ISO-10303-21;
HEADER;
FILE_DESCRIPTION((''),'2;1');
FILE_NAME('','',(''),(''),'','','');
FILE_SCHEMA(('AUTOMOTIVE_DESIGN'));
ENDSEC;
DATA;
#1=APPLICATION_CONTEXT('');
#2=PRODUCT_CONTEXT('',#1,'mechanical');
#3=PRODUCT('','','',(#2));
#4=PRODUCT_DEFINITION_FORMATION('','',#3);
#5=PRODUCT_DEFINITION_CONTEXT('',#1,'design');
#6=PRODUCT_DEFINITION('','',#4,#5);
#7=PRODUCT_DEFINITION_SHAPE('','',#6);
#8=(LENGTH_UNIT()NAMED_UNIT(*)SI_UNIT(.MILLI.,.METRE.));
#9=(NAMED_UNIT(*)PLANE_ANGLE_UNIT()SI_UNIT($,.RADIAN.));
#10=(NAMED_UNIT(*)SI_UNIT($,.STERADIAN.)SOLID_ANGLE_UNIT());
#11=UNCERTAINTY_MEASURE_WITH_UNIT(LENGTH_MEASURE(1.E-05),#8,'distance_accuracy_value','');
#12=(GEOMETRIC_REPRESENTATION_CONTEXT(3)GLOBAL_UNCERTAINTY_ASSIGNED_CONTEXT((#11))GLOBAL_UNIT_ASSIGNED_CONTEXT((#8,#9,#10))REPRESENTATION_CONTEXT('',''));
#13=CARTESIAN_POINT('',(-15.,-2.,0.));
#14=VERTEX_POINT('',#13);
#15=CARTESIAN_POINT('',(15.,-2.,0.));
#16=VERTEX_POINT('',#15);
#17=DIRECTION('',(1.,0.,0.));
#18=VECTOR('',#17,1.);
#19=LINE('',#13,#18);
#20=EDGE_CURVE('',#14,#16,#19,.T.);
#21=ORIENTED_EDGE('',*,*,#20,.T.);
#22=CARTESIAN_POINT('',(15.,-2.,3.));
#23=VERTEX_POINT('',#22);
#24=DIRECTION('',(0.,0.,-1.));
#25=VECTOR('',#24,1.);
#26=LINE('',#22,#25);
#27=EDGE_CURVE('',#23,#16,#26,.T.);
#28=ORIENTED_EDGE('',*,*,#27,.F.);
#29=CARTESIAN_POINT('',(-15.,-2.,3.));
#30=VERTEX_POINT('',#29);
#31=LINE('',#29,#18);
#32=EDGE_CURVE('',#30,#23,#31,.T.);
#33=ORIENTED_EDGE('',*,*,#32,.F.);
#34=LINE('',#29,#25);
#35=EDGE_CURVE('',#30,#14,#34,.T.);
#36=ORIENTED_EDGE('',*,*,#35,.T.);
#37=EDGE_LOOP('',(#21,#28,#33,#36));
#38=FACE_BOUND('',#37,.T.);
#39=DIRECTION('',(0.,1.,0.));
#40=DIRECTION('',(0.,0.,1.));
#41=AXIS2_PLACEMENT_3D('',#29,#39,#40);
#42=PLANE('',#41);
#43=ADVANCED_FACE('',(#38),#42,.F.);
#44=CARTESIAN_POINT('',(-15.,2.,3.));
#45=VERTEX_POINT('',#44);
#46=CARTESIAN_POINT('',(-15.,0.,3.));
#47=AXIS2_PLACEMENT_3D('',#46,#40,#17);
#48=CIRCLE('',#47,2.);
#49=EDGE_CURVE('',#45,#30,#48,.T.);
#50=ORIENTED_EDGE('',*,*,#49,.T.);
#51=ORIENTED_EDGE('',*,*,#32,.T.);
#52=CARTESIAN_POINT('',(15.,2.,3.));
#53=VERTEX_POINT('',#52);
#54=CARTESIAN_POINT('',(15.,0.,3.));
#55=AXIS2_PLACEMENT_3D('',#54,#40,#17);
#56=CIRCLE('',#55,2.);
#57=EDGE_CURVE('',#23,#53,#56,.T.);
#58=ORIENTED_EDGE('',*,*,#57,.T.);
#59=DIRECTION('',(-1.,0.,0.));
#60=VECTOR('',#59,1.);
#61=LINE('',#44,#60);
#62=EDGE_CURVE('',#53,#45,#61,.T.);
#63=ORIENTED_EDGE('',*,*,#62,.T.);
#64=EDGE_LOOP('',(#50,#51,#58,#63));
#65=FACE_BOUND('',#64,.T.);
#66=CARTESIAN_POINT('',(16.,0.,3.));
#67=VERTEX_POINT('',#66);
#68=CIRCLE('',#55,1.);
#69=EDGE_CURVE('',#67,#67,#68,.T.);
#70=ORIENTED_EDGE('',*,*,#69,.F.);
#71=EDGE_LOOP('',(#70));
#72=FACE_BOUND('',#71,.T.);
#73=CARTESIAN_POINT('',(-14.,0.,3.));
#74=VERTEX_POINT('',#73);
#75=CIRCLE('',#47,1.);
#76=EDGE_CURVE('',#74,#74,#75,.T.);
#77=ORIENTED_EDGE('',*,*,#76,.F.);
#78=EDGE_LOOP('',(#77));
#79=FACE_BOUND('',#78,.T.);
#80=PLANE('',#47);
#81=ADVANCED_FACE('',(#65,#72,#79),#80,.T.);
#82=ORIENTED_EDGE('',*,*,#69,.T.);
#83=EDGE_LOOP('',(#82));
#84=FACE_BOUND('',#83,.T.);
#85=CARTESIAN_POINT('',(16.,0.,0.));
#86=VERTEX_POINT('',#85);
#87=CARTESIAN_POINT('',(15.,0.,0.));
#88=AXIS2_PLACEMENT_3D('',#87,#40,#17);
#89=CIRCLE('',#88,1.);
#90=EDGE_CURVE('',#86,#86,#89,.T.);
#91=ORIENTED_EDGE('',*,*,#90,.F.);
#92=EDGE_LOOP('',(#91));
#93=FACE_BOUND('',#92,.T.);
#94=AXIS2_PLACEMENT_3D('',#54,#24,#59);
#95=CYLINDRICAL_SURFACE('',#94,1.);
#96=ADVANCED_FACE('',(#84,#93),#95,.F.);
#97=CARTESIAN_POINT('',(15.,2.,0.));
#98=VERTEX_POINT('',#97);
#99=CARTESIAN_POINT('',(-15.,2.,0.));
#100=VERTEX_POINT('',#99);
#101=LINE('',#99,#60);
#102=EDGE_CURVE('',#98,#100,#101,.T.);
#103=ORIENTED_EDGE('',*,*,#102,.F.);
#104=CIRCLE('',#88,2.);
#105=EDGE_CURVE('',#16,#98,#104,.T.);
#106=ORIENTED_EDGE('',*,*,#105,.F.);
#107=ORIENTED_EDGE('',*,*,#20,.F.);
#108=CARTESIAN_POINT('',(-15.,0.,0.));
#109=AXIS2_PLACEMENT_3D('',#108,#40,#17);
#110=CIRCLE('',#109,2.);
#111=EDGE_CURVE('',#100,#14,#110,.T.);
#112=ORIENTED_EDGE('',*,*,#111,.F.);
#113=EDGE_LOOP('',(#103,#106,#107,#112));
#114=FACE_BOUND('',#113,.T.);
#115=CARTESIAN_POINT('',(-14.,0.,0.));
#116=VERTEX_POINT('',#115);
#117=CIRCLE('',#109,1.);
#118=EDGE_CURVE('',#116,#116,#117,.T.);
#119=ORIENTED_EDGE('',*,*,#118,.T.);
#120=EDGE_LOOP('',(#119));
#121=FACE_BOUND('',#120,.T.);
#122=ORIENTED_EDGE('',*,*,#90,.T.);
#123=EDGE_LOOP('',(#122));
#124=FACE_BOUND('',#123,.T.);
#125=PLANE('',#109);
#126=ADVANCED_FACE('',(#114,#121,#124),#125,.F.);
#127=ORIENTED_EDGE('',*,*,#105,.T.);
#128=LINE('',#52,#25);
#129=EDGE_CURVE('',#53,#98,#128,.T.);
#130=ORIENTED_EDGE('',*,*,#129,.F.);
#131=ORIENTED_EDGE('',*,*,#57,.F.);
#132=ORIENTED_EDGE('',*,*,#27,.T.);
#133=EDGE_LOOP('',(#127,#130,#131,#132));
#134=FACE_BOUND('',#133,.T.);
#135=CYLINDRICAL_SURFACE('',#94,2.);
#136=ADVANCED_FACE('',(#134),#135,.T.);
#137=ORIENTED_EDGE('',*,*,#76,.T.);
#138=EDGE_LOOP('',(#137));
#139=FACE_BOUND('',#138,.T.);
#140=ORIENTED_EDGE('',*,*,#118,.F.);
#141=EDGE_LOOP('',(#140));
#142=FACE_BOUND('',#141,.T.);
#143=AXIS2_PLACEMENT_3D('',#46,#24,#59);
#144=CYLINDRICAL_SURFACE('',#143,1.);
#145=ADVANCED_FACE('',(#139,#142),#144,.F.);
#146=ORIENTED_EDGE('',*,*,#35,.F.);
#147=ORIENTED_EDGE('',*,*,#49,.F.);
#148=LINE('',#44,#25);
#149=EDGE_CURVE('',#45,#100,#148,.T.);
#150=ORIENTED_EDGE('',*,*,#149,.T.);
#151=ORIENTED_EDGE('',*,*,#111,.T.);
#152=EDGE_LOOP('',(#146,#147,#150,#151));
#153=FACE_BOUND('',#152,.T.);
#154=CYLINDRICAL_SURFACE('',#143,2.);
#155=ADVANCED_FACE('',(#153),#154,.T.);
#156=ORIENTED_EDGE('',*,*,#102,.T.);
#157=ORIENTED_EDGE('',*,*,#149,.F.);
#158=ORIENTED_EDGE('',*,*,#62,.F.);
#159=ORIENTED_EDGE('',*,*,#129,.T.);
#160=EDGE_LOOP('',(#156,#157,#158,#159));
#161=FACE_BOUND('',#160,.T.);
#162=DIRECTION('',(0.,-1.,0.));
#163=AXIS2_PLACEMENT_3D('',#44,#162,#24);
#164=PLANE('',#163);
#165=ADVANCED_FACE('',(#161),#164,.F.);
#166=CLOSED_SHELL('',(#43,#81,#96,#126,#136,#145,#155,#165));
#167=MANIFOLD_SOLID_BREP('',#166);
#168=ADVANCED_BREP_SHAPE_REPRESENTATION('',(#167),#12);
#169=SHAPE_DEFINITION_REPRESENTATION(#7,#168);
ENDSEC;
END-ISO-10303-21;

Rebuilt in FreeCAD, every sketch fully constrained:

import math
import FreeCAD as App
import Part
import Sketcher
Q = App.Units.Quantity

doc = App.newDocument("Part")
body = doc.addObject("PartDesign::Body", "Body")

# Sketch on XY plane
sketch1 = body.newObject("Sketcher::SketchObject", "Sketch")
sketch1.AttachmentSupport = (doc.getObject("XY_Plane"), [""])
sketch1.MapMode = "FlatFace"
sketch1.addGeometry(Part.LineSegment(App.Vector(15, 2, 0), App.Vector(-15, 2, 0)), False)
sketch1.addGeometry(Part.ArcOfCircle(Part.Circle(App.Vector(-15, 0, 0), App.Vector(0, 0, 1), 2), math.radians(90), math.radians(270)), False)
sketch1.addGeometry(Part.LineSegment(App.Vector(-15, -2, 0), App.Vector(15, -2, 0)), False)
sketch1.addGeometry(Part.ArcOfCircle(Part.Circle(App.Vector(15, 0, 0), App.Vector(0, 0, 1), 2), math.radians(-90), math.radians(90)), False)
sketch1.addGeometry(Part.Circle(App.Vector(15, 0, 0), App.Vector(0, 0, 1), 1), False)
sketch1.addGeometry(Part.Circle(App.Vector(-15, 0, 0), App.Vector(0, 0, 1), 1), False)
sketch1.addConstraint(Sketcher.Constraint("Tangent", 0, 2, 1, 1))
sketch1.addConstraint(Sketcher.Constraint("Tangent", 1, 2, 2, 1))
sketch1.addConstraint(Sketcher.Constraint("Tangent", 2, 2, 3, 1))
sketch1.addConstraint(Sketcher.Constraint("Tangent", 3, 2, 0, 1))
sketch1.addConstraint(Sketcher.Constraint("Horizontal", 0))
sketch1.addConstraint(Sketcher.Constraint("Horizontal", 2))
sketch1.addConstraint(Sketcher.Constraint("Coincident", 4, 3, 3, 3))
sketch1.addConstraint(Sketcher.Constraint("Coincident", 5, 3, 1, 3))
sketch1.addConstraint(Sketcher.Constraint("Equal", 4, 5))
sketch1.addConstraint(Sketcher.Constraint("Symmetric", 1, 3, 3, 3, -1, 1))
sketch1.addConstraint(Sketcher.Constraint("Diameter", 4, Q("2 mm")))
sketch1.addConstraint(Sketcher.Constraint("Radius", 1, Q("2 mm")))
sketch1.addConstraint(Sketcher.Constraint("DistanceX", 0, 2, 0, 1, Q("30 mm")))
pad1 = body.newObject("PartDesign::Pad", "Pad")
pad1.Profile = sketch1
pad1.Length = 3

doc.recompute()
